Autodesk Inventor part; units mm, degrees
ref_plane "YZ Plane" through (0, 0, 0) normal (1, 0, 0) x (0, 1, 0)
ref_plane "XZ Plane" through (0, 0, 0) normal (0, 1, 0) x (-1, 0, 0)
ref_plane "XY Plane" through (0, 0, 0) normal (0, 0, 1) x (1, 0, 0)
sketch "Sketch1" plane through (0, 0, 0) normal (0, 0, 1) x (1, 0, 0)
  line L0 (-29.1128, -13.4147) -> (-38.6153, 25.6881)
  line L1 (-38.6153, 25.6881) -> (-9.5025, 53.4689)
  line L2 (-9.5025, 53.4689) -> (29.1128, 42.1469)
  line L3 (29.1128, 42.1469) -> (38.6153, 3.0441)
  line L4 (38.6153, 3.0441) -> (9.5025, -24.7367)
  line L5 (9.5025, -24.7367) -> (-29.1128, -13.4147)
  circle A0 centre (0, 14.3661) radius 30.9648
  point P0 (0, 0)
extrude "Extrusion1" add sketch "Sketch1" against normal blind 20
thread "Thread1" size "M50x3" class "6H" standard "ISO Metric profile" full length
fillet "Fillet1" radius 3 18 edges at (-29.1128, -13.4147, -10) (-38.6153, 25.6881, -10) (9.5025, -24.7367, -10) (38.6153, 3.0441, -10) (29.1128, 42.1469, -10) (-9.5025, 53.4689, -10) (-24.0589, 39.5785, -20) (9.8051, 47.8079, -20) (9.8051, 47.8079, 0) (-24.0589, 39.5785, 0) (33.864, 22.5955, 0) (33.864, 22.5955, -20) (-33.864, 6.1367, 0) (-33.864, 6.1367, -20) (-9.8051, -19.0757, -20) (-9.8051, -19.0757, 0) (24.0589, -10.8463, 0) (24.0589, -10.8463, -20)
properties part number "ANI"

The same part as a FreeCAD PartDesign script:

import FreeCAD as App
import Part
import Sketcher
Q = App.Units.Quantity


def edges_at(feature, points):
    """Names of the edges that pass closest to the given points."""
    edges = feature.Shape.Edges
    near = lambda p: min(range(len(edges)), key=lambda i: edges[i].distToShape(Part.Vertex(*p))[0])
    return sorted({f"Edge{near(p) + 1}" for p in points})


def add_polygon(sketch, points):
    """Adds a closed chain of lines whose ends are joined by coincident constraints."""
    first, n = sketch.GeometryCount, len(points)
    for a, b in zip(points, points[1:] + points[:1]):
        sketch.addGeometry(Part.LineSegment(App.Vector(*a, 0), App.Vector(*b, 0)), False)
    for i in range(n):
        sketch.addConstraint(Sketcher.Constraint("Coincident", first + i, 2, first + (i + 1) % n, 1))

doc = App.newDocument("Part")
params = doc.addObject("Spreadsheet::Sheet", "Params")
for row, (alias, value) in enumerate([
    ("pad1_length", "20 mm"),
    ("fillet_radius", "3 mm"),
], start=1):
    params.set(f"A{row}", alias)
    params.set(f"B{row}", "=" + value)
    params.setAlias(f"B{row}", alias)

body = doc.addObject("PartDesign::Body", "Body")

sketch1 = doc.addObject("Sketcher::SketchObject", "Sketch")
body.addObject(sketch1)
sketch1.AttachmentSupport = (doc.XY_Plane, [""])
sketch1.MapMode = "FlatFace"
add_polygon(sketch1, [(-39, 26), (-29, -13), (10, -25), (39, 3), (29, 42), (-10, 53)])
sketch1.addGeometry(Part.Circle(App.Vector(0, 14, 0), App.Vector(0, 0, 1), 31), False)
sketch1.addConstraint(Sketcher.Constraint("PointOnObject", 6, 3, -2))
sketch1.addConstraint(Sketcher.Constraint("Parallel", 0, 3))
sketch1.addConstraint(Sketcher.Constraint("Parallel", 1, 4))
sketch1.addConstraint(Sketcher.Constraint("Parallel", 2, 5))
sketch1.addConstraint(Sketcher.Constraint("Equal", 0, 1))
sketch1.addConstraint(Sketcher.Constraint("Equal", 1, 2))
sketch1.addConstraint(Sketcher.Constraint("Equal", 2, 3))
sketch1.addConstraint(Sketcher.Constraint("Diameter", 6, Q("61.9296 mm")))
sketch1.addConstraint(Sketcher.Constraint("Angle", 0, Q("-76.3411 deg")))
sketch1.addConstraint(Sketcher.Constraint("Angle", 1, Q("-16.3411 deg")))
sketch1.addConstraint(Sketcher.Constraint("Angle", 2, Q("43.6588 deg")))
sketch1.addConstraint(Sketcher.Constraint("Distance", 1, Q("40.241 mm")))
sketch1.addConstraint(Sketcher.Constraint("DistanceY", -1, 1, 6, 3, Q("14.366 mm")))
sketch1.addConstraint(Sketcher.Constraint("DistanceY", -1, 1, 2, 2, Q("3.044 mm")))
sketch1.addConstraint(Sketcher.Constraint("DistanceX", 0, 2, -1, 1, Q("29.1128 mm")))
pad1 = doc.addObject("PartDesign::Pad", "Pad")
body.addObject(pad1)
pad1.Profile = sketch1
pad1.setExpression("Length", "Params.pad1_length")
pad1.Reversed = True
doc.recompute()

fillet = doc.addObject("PartDesign::Fillet", "Fillet")
body.addObject(fillet)
fillet.Base = (pad1, edges_at(pad1, [
    (-29.113, -13.415, -10),
    (-38.615, 25.688, -10),
    (9.502, -24.737, -10),
    (38.615, 3.044, -10),
    (29.113, 42.147, -10),
    (-9.502, 53.469, -10),
    (-24.059, 39.578, -20),
    (9.805, 47.808, -20),
    (9.805, 47.808, 0),
    (-24.059, 39.578, 0),
    (33.864, 22.596, 0),
    (33.864, 22.596, -20),
    (-33.864, 6.137, 0),
    (-33.864, 6.137, -20),
    (-9.805, -19.076, -20),
    (-9.805, -19.076, 0),
    (24.059, -10.846, 0),
    (24.059, -10.846, -20),
]))
fillet.setExpression("Radius", "Params.fillet_radius")

doc.recompute()
